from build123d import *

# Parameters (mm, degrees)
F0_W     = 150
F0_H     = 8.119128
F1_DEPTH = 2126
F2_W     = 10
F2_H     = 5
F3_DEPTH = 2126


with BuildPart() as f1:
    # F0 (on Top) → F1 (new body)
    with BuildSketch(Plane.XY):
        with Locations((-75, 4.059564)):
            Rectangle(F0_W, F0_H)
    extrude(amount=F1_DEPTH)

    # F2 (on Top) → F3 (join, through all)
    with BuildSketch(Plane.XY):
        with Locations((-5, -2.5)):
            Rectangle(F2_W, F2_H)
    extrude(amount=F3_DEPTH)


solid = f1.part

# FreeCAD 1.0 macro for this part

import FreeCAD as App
import Part
import Sketcher

V = App.Vector
Q = App.Units.Quantity


def add_polygon(sketch, points):
    """Adds a closed chain of lines whose ends are joined by coincident constraints."""
    first, n = sketch.GeometryCount, len(points)
    for a, b in zip(points, points[1:] + points[:1]):
        sketch.addGeometry(Part.LineSegment(App.Vector(*a, 0), App.Vector(*b, 0)), False)
    for i in range(n):
        sketch.addConstraint(Sketcher.Constraint("Coincident", first + i, 2, first + (i + 1) % n, 1))

doc = App.newDocument("Part")
params = doc.addObject("Spreadsheet::Sheet", "Params")
for row, (alias, value) in enumerate([
    ("sketch1_width", "150 mm"),
    ("pad1_length", "2126 mm"),
    ("sketch2_width", "10 mm"),
    ("sketch2_height", "5 mm"),
    ("pad2_length", "2126 mm"),
], start=1):
    params.set(f"A{row}", alias)
    params.set(f"B{row}", "=" + value)
    params.setAlias(f"B{row}", alias)

body = doc.addObject("PartDesign::Body", "Body")

# Sketch on XY plane
sketch1 = doc.addObject("Sketcher::SketchObject", "Sketch")
body.addObject(sketch1)
sketch1.AttachmentSupport = (doc.XY_Plane, [""])
sketch1.MapMode = "FlatFace"
add_polygon(sketch1, [(-150, 8), (-150, 0), (0, 0), (0, 8)])  # lines 0-3
sketch1.addConstraint([
    Sketcher.Constraint("Vertical", 0),
    Sketcher.Constraint("Horizontal", 1),
    Sketcher.Constraint("Vertical", 2),
    Sketcher.Constraint("Horizontal", 3),
    Sketcher.Constraint("Coincident", 1, 2, -1, 1),
    Sketcher.Constraint("DistanceX", 1, 1, 1, 2, Q("150 mm")),
    Sketcher.Constraint("DistanceY", 0, 2, 0, 1, Q("8.119128 mm")),
])
sketch1.setExpression("Constraints[9]", "Params.sketch1_width")
pad1 = doc.addObject("PartDesign::Pad", "Pad")
body.addObject(pad1)
pad1.Profile = sketch1
pad1.setExpression("Length", "Params.pad1_length")

# Sketch on XY plane
sketch2 = doc.addObject("Sketcher::SketchObject", "Sketch001")
body.addObject(sketch2)
sketch2.AttachmentSupport = (doc.XY_Plane, [""])
sketch2.MapMode = "FlatFace"
add_polygon(sketch2, [(-10, 0), (-10, -5), (0, -5), (0, 0)])  # lines 0-3
sketch2.addConstraint([
    Sketcher.Constraint("Vertical", 0),
    Sketcher.Constraint("Horizontal", 1),
    Sketcher.Constraint("Vertical", 2),
    Sketcher.Constraint("Horizontal", 3),
    Sketcher.Constraint("Coincident", 2, 2, -1, 1),
    Sketcher.Constraint("DistanceX", 1, 1, 1, 2, Q("10 mm")),
    Sketcher.Constraint("DistanceY", 0, 2, 0, 1, Q("5 mm")),
])
sketch2.setExpression("Constraints[9]", "Params.sketch2_width")
sketch2.setExpression("Constraints[10]", "Params.sketch2_height")
pad2 = doc.addObject("PartDesign::Pad", "Pad001")
body.addObject(pad2)
pad2.Profile = sketch2
pad2.setExpression("Length", "Params.pad2_length")

doc.recompute()
